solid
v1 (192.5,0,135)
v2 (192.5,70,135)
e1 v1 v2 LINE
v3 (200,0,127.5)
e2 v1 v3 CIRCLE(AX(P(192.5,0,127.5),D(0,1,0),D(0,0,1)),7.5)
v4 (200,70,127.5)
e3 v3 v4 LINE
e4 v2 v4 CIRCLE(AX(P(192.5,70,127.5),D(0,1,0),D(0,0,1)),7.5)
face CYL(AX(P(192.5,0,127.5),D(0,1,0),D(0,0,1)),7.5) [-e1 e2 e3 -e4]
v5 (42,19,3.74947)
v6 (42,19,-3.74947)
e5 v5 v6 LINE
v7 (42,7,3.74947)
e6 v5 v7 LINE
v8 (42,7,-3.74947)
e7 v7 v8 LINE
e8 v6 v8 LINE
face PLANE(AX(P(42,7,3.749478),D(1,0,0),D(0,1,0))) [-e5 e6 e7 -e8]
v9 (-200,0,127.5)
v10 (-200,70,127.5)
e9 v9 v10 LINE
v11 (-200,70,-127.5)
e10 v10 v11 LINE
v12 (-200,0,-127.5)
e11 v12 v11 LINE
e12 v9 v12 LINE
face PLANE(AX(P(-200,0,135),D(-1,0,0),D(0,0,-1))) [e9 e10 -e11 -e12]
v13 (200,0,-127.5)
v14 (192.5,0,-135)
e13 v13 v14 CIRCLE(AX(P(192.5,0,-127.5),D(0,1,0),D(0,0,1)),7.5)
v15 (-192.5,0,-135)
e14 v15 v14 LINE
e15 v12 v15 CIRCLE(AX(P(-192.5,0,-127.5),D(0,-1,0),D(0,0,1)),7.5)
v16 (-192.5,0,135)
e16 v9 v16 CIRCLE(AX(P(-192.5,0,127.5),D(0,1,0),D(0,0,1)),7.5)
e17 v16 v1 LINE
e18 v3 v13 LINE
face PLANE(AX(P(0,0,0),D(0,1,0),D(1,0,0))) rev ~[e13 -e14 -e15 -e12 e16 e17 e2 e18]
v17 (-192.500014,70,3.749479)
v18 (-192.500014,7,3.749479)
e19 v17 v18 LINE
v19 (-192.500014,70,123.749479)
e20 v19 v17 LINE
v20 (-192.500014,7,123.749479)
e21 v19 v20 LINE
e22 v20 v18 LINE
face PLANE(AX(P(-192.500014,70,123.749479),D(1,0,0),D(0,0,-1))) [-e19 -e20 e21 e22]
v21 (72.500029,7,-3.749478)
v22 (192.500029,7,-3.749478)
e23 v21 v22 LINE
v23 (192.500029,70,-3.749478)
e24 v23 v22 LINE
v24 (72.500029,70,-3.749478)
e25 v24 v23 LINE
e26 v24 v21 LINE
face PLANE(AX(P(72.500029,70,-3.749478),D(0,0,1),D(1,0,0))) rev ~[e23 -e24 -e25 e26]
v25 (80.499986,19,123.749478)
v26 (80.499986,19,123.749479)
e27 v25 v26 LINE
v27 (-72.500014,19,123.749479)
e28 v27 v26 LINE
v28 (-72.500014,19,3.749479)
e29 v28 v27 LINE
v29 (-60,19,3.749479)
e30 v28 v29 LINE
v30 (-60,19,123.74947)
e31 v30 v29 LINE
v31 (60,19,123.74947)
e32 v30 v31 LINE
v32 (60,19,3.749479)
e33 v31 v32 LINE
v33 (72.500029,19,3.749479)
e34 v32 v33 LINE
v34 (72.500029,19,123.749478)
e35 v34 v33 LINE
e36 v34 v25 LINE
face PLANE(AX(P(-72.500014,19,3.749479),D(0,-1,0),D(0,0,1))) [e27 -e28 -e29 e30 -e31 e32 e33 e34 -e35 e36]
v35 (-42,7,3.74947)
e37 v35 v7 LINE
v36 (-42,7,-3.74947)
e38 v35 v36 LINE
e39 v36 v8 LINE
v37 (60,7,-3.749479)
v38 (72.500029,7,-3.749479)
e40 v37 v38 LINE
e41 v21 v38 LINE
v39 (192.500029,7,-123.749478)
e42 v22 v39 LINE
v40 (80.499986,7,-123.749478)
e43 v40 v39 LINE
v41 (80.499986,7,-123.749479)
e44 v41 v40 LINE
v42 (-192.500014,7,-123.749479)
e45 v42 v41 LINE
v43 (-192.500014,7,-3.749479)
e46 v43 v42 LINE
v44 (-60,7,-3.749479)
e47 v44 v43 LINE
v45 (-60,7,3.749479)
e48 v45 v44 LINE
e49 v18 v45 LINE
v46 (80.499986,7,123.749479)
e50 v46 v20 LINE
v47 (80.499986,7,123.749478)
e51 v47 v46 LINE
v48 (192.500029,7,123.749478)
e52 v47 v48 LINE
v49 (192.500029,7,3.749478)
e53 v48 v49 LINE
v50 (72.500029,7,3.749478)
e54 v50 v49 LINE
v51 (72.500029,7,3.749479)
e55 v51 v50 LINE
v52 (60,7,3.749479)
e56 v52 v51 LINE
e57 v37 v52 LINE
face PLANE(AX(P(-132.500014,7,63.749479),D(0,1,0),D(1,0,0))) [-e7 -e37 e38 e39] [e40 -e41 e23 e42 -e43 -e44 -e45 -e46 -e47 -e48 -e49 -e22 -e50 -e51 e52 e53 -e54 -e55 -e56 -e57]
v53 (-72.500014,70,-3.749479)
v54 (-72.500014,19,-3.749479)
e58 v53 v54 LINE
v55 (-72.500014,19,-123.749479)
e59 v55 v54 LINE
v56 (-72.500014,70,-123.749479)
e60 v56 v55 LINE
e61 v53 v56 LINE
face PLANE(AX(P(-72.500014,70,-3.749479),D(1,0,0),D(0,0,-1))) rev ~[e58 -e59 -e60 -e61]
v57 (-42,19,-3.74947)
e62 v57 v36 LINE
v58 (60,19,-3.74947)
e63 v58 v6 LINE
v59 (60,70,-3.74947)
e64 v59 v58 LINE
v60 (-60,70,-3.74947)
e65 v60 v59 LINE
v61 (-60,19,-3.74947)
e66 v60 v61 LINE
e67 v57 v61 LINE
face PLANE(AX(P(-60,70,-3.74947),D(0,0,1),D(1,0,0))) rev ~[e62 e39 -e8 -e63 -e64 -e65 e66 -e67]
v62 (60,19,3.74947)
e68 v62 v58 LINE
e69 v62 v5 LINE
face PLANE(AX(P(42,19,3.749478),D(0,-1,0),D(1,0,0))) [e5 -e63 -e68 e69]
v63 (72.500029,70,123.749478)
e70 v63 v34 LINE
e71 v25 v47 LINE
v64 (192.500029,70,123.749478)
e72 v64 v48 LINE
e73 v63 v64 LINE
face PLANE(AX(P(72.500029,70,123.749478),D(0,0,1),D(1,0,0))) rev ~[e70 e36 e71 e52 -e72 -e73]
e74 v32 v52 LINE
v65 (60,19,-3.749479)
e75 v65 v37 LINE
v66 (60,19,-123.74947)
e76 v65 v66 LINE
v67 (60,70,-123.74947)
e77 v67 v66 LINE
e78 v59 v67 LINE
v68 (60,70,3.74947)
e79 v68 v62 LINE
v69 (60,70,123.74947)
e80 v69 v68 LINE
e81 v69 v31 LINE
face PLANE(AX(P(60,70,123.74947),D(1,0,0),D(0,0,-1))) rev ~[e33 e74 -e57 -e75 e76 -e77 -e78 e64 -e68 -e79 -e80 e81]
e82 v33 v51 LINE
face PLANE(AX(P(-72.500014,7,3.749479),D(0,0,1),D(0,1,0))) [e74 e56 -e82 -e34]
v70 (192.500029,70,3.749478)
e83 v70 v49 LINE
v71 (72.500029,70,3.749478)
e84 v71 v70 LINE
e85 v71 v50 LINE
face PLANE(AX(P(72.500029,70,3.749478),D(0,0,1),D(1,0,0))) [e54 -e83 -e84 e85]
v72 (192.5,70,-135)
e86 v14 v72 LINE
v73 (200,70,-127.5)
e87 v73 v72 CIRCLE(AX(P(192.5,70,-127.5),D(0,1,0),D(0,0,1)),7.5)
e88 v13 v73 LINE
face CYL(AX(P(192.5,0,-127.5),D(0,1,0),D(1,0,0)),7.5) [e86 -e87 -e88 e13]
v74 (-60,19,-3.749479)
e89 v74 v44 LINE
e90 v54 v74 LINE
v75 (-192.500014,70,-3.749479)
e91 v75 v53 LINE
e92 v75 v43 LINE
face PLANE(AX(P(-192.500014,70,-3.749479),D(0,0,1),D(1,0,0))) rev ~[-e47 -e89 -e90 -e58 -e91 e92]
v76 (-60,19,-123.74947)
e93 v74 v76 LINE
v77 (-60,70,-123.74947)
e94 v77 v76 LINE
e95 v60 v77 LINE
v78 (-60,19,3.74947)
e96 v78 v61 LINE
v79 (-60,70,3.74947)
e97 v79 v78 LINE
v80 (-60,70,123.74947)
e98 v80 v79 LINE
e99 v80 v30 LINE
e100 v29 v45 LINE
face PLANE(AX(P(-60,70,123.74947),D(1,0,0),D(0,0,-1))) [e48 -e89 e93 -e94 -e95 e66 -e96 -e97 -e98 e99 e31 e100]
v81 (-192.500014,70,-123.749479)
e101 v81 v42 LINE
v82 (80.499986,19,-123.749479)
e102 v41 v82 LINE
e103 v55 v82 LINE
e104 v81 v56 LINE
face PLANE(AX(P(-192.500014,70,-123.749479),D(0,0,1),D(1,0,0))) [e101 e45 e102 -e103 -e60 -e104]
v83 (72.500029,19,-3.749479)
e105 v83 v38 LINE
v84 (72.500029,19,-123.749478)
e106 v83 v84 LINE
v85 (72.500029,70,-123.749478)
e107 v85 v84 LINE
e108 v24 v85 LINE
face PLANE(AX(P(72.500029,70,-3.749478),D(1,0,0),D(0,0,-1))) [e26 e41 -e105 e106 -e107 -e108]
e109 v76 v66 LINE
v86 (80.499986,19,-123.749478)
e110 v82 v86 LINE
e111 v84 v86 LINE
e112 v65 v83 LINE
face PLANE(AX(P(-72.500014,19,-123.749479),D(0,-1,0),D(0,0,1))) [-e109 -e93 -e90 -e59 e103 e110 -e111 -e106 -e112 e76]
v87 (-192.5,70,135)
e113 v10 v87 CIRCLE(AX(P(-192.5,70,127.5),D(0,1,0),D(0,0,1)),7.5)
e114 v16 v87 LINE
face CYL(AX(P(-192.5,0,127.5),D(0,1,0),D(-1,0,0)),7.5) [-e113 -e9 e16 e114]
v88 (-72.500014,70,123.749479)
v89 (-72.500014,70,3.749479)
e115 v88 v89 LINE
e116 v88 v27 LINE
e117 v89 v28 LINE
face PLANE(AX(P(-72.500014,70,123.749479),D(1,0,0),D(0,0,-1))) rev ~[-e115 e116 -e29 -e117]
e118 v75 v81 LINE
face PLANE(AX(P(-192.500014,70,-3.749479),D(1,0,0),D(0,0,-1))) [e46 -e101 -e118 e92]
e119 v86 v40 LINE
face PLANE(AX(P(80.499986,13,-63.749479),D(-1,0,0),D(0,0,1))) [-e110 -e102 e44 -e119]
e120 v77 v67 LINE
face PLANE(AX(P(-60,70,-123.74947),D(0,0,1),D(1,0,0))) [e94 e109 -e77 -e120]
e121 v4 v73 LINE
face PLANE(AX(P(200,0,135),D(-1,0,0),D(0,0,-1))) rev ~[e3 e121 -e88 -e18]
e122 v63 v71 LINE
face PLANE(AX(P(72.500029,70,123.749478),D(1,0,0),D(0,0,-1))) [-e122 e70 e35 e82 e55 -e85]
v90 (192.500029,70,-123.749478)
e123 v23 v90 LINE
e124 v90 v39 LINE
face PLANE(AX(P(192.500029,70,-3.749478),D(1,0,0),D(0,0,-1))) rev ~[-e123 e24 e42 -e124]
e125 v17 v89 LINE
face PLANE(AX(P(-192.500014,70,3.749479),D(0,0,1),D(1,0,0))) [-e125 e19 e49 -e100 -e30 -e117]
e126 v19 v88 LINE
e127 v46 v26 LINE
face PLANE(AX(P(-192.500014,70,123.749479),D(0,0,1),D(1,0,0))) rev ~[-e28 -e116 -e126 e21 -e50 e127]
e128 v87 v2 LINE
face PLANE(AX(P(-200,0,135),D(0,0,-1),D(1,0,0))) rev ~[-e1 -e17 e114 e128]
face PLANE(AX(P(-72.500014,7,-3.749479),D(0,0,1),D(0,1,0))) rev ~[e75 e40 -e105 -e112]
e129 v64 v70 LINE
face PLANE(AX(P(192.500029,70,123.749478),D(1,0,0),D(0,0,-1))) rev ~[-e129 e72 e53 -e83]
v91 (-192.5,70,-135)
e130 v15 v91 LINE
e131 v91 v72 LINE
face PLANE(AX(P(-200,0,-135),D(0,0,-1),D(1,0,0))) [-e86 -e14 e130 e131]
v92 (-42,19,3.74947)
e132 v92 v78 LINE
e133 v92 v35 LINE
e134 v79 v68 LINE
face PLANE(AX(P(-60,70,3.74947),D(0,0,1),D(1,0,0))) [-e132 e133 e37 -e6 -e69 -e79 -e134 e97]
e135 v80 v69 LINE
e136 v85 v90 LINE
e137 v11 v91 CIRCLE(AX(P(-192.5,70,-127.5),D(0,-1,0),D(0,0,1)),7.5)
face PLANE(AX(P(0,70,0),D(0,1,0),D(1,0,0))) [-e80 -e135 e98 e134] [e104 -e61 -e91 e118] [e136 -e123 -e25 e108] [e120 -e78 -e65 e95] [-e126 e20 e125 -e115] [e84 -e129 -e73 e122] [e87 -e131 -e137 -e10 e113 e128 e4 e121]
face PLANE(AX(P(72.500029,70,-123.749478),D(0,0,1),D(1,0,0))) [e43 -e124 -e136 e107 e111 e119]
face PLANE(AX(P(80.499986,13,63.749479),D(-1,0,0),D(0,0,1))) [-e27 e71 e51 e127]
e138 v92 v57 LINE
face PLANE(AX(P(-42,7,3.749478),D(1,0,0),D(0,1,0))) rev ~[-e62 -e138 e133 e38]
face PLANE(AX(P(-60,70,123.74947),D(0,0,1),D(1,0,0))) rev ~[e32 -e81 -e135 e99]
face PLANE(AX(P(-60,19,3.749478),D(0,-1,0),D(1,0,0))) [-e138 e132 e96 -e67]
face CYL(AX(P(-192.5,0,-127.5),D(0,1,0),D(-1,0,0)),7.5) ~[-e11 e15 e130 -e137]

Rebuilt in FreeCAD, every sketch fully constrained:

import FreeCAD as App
import Part
import Sketcher


def edges_at(feature, points):
    """Names of the edges that pass closest to the given points."""
    edges = feature.Shape.Edges
    near = lambda p: min(range(len(edges)), key=lambda i: edges[i].distToShape(Part.Vertex(*p))[0])
    return sorted({f"Edge{near(p) + 1}" for p in points})


def add_polygon(sketch, points):
    """Adds a closed chain of lines whose ends are joined by coincident constraints."""
    first, n = sketch.GeometryCount, len(points)
    for a, b in zip(points, points[1:] + points[:1]):
        sketch.addGeometry(Part.LineSegment(App.Vector(*a, 0), App.Vector(*b, 0)), False)
    for i in range(n):
        sketch.addConstraint(Sketcher.Constraint("Coincident", first + i, 2, first + (i + 1) % n, 1))

doc = App.newDocument("Part")
body = doc.addObject("PartDesign::Body", "Body")

sketch1 = body.newObject("Sketcher::SketchObject", "Sketch")
sketch1.AttachmentSupport = (doc.getObject("XZ_Plane"), [""])
sketch1.MapMode = "FlatFace"
add_polygon(sketch1, [(-200, -135), (-200, 135), (200, 135), (200, -135)])
sketch1.addConstraint(Sketcher.Constraint("Vertical", 0))
sketch1.addConstraint(Sketcher.Constraint("Horizontal", 1))
sketch1.addConstraint(Sketcher.Constraint("Vertical", 2))
sketch1.addConstraint(Sketcher.Constraint("Horizontal", 3))
sketch1.addConstraint(Sketcher.Constraint("Symmetric", 0, 2, 2, 2, -1, 1))
sketch1.addConstraint(Sketcher.Constraint("DistanceX", 1, 1, 1, 2, 400.0))
sketch1.addConstraint(Sketcher.Constraint("DistanceY", 0, 1, 0, 2, 270.0))
pad1 = body.newObject("PartDesign::Pad", "Pad")
pad1.Profile = sketch1
pad1.Length = 70
pad1.Reversed = True
doc.recompute()

fillet = body.newObject("PartDesign::Fillet", "Fillet")
fillet.Base = (pad1, edges_at(pad1, [
    (-200, 35, -135),
    (200, 35, -135),
    (200, 35, 135),
    (-200, 35, 135),
]))
fillet.Radius = 7.5

sketch2 = body.newObject("Sketcher::SketchObject", "Sketch001")
sketch2.AttachmentSupport = (doc.getObject("XZ_Plane"), [""])
sketch2.MapMode = "FlatFace"
sketch2.AttachmentOffset = App.Placement(App.Vector(0, 0, -70), App.Rotation())
add_polygon(sketch2, [(-60, -124), (-60, -4), (60, -4), (60, -124)])
add_polygon(sketch2, [(-193, -124), (-193, -4), (-73, -4), (-73, -124)])
add_polygon(sketch2, [(73, -124), (73, -4), (193, -4), (193, -124)])
add_polygon(sketch2, [(73, 4), (73, 124), (193, 124), (193, 4)])
add_polygon(sketch2, [(-60, 4), (-60, 124), (60, 124), (60, 4)])
add_polygon(sketch2, [(-193, 4), (-193, 124), (-73, 124), (-73, 4)])
sketch2.addConstraint(Sketcher.Constraint("Vertical", 0))
sketch2.addConstraint(Sketcher.Constraint("Horizontal", 1))
sketch2.addConstraint(Sketcher.Constraint("Vertical", 2))
sketch2.addConstraint(Sketcher.Constraint("Horizontal", 3))
sketch2.addConstraint(Sketcher.Constraint("Vertical", 4))
sketch2.addConstraint(Sketcher.Constraint("Horizontal", 5))
sketch2.addConstraint(Sketcher.Constraint("Vertical", 6))
sketch2.addConstraint(Sketcher.Constraint("Horizontal", 7))
sketch2.addConstraint(Sketcher.Constraint("Vertical", 8))
sketch2.addConstraint(Sketcher.Constraint("Horizontal", 9))
sketch2.addConstraint(Sketcher.Constraint("Vertical", 10))
sketch2.addConstraint(Sketcher.Constraint("Horizontal", 11))
sketch2.addConstraint(Sketcher.Constraint("Vertical", 12))
sketch2.addConstraint(Sketcher.Constraint("Horizontal", 13))
sketch2.addConstraint(Sketcher.Constraint("Vertical", 14))
sketch2.addConstraint(Sketcher.Constraint("Horizontal", 15))
sketch2.addConstraint(Sketcher.Constraint("Vertical", 16))
sketch2.addConstraint(Sketcher.Constraint("Horizontal", 17))
sketch2.addConstraint(Sketcher.Constraint("Vertical", 18))
sketch2.addConstraint(Sketcher.Constraint("Horizontal", 19))
sketch2.addConstraint(Sketcher.Constraint("Vertical", 20))
sketch2.addConstraint(Sketcher.Constraint("Horizontal", 21))
sketch2.addConstraint(Sketcher.Constraint("Vertical", 22))
sketch2.addConstraint(Sketcher.Constraint("Horizontal", 23))
sketch2.addConstraint(Sketcher.Constraint("Symmetric", 2, 2, 16, 2, -1, 1))
sketch2.addConstraint(Sketcher.Constraint("Symmetric", 0, 2, 18, 2, -1, 1))
sketch2.addConstraint(Sketcher.Constraint("Symmetric", 11, 2, 12, 2, -1))
sketch2.addConstraint(Sketcher.Constraint("Symmetric", 9, 2, 14, 2, -1))
sketch2.addConstraint(Sketcher.Constraint("Symmetric", 7, 2, 20, 2, -1))
sketch2.addConstraint(Sketcher.Constraint("Symmetric", 5, 2, 22, 2, -1))
sketch2.addConstraint(Sketcher.Constraint("Horizontal", 5, 2, 8, 2))
sketch2.addConstraint(Sketcher.Constraint("Horizontal", 7, 2, 10, 2))
sketch2.addConstraint(Sketcher.Constraint("Vertical", 3, 2, 16, 2))
sketch2.addConstraint(Sketcher.Constraint("Equal", 3, 5))
sketch2.addConstraint(Sketcher.Constraint("Equal", 7, 9))
sketch2.addConstraint(Sketcher.Constraint("Equal", 23, 0))
sketch2.addConstraint(Sketcher.Constraint("Equal", 2, 4))
sketch2.addConstraint(Sketcher.Constraint("DistanceX", 1, 1, 1, 2, 120.0))
sketch2.addConstraint(Sketcher.Constraint("DistanceY", 0, 2, -1, 1, 3.74947))
sketch2.addConstraint(Sketcher.Constraint("DistanceY", 4, 2, -1, 1, 3.749479))
sketch2.addConstraint(Sketcher.Constraint("DistanceX", -1, 1, 8, 2, 72.500029))
sketch2.addConstraint(Sketcher.Constraint("DistanceX", 4, 2, -1, 1, 192.500014))
pocket1 = body.newObject("PartDesign::Pocket", "Pocket")
pocket1.Profile = sketch2
pocket1.Length = 63
pocket1.Reversed = True

sketch3 = body.newObject("Sketcher::SketchObject", "Sketch002")
sketch3.AttachmentSupport = (doc.getObject("YZ_Plane"), [""])
sketch3.MapMode = "FlatFace"
sketch3.AttachmentOffset = App.Placement(App.Vector(0, 0, -72.500014), App.Rotation())
add_polygon(sketch3, [(19, -124), (7, -124), (7, -4), (19, -4)])
sketch3.addConstraint(Sketcher.Constraint("Horizontal", 0))
sketch3.addConstraint(Sketcher.Constraint("Vertical", 1))
sketch3.addConstraint(Sketcher.Constraint("Horizontal", 2))
sketch3.addConstraint(Sketcher.Constraint("Vertical", 3))
sketch3.addConstraint(Sketcher.Constraint("DistanceX", 0, 2, 0, 1, 12.0))
sketch3.addConstraint(Sketcher.Constraint("DistanceY", 1, 1, 1, 2, 120.0))
sketch3.addConstraint(Sketcher.Constraint("DistanceX", -1, 1, 0, 2, 7.0))
sketch3.addConstraint(Sketcher.Constraint("DistanceY", 0, 2, -1, 1, 123.749479))
pocket2 = body.newObject("PartDesign::Pocket", "Pocket001")
pocket2.Profile = sketch3
pocket2.Length = 153
pocket2.Reversed = True

sketch4 = body.newObject("Sketcher::SketchObject", "Sketch003")
sketch4.AttachmentSupport = (doc.getObject("YZ_Plane"), [""])
sketch4.MapMode = "FlatFace"
sketch4.AttachmentOffset = App.Placement(App.Vector(0, 0, -72.500014), App.Rotation())
add_polygon(sketch4, [(19, 4), (7, 4), (7, 124), (19, 124)])
sketch4.addConstraint(Sketcher.Constraint("Horizontal", 0))
sketch4.addConstraint(Sketcher.Constraint("Vertical", 1))
sketch4.addConstraint(Sketcher.Constraint("Horizontal", 2))
sketch4.addConstraint(Sketcher.Constraint("Vertical", 3))
sketch4.addConstraint(Sketcher.Constraint("DistanceX", 0, 2, 0, 1, 12.0))
sketch4.addConstraint(Sketcher.Constraint("DistanceY", 1, 1, 1, 2, 120.0))
sketch4.addConstraint(Sketcher.Constraint("DistanceX", -1, 1, 0, 2, 7.0))
sketch4.addConstraint(Sketcher.Constraint("DistanceY", -1, 1, 0, 2, 3.749479))
pocket3 = body.newObject("PartDesign::Pocket", "Pocket002")
pocket3.Profile = sketch4
pocket3.Length = 153
pocket3.Reversed = True

sketch5 = body.newObject("Sketcher::SketchObject", "Sketch004")
sketch5.AttachmentSupport = (doc.getObject("XY_Plane"), [""])
sketch5.MapMode = "FlatFace"
sketch5.AttachmentOffset = App.Placement(App.Vector(0, 0, 3.749478), App.Rotation())
add_polygon(sketch5, [(-60, 19), (-60, 7), (-42, 7), (-42, 19)])
sketch5.addConstraint(Sketcher.Constraint("Vertical", 0))
sketch5.addConstraint(Sketcher.Constraint("Horizontal", 1))
sketch5.addConstraint(Sketcher.Constraint("Vertical", 2))
sketch5.addConstraint(Sketcher.Constraint("Horizontal", 3))
sketch5.addConstraint(Sketcher.Constraint("DistanceX", 1, 1, 1, 2, 18.0))
sketch5.addConstraint(Sketcher.Constraint("DistanceY", 0, 2, 0, 1, 12.0))
sketch5.addConstraint(Sketcher.Constraint("DistanceX", 0, 2, -1, 1, 60.0))
sketch5.addConstraint(Sketcher.Constraint("DistanceY", -1, 1, 0, 2, 7.0))
pocket4 = body.newObject("PartDesign::Pocket", "Pocket003")
pocket4.Profile = sketch5
pocket4.Type = "UpToFirst"

sketch6 = body.newObject("Sketcher::SketchObject", "Sketch005")
sketch6.AttachmentSupport = (doc.getObject("XY_Plane"), [""])
sketch6.MapMode = "FlatFace"
sketch6.AttachmentOffset = App.Placement(App.Vector(0, 0, 3.749478), App.Rotation())
add_polygon(sketch6, [(42, 19), (42, 7), (60, 7), (60, 19)])
sketch6.addConstraint(Sketcher.Constraint("Vertical", 0))
sketch6.addConstraint(Sketcher.Constraint("Horizontal", 1))
sketch6.addConstraint(Sketcher.Constraint("Vertical", 2))
sketch6.addConstraint(Sketcher.Constraint("Horizontal", 3))
sketch6.addConstraint(Sketcher.Constraint("DistanceX", 1, 1, 1, 2, 18.0))
sketch6.addConstraint(Sketcher.Constraint("DistanceY", 0, 2, 0, 1, 12.0))
sketch6.addConstraint(Sketcher.Constraint("DistanceX", -1, 1, 0, 2, 42.0))
sketch6.addConstraint(Sketcher.Constraint("DistanceY", -1, 1, 0, 2, 7.0))
pocket5 = body.newObject("PartDesign::Pocket", "Pocket004")
pocket5.Profile = sketch6
pocket5.Type = "UpToFirst"

doc.recompute()
